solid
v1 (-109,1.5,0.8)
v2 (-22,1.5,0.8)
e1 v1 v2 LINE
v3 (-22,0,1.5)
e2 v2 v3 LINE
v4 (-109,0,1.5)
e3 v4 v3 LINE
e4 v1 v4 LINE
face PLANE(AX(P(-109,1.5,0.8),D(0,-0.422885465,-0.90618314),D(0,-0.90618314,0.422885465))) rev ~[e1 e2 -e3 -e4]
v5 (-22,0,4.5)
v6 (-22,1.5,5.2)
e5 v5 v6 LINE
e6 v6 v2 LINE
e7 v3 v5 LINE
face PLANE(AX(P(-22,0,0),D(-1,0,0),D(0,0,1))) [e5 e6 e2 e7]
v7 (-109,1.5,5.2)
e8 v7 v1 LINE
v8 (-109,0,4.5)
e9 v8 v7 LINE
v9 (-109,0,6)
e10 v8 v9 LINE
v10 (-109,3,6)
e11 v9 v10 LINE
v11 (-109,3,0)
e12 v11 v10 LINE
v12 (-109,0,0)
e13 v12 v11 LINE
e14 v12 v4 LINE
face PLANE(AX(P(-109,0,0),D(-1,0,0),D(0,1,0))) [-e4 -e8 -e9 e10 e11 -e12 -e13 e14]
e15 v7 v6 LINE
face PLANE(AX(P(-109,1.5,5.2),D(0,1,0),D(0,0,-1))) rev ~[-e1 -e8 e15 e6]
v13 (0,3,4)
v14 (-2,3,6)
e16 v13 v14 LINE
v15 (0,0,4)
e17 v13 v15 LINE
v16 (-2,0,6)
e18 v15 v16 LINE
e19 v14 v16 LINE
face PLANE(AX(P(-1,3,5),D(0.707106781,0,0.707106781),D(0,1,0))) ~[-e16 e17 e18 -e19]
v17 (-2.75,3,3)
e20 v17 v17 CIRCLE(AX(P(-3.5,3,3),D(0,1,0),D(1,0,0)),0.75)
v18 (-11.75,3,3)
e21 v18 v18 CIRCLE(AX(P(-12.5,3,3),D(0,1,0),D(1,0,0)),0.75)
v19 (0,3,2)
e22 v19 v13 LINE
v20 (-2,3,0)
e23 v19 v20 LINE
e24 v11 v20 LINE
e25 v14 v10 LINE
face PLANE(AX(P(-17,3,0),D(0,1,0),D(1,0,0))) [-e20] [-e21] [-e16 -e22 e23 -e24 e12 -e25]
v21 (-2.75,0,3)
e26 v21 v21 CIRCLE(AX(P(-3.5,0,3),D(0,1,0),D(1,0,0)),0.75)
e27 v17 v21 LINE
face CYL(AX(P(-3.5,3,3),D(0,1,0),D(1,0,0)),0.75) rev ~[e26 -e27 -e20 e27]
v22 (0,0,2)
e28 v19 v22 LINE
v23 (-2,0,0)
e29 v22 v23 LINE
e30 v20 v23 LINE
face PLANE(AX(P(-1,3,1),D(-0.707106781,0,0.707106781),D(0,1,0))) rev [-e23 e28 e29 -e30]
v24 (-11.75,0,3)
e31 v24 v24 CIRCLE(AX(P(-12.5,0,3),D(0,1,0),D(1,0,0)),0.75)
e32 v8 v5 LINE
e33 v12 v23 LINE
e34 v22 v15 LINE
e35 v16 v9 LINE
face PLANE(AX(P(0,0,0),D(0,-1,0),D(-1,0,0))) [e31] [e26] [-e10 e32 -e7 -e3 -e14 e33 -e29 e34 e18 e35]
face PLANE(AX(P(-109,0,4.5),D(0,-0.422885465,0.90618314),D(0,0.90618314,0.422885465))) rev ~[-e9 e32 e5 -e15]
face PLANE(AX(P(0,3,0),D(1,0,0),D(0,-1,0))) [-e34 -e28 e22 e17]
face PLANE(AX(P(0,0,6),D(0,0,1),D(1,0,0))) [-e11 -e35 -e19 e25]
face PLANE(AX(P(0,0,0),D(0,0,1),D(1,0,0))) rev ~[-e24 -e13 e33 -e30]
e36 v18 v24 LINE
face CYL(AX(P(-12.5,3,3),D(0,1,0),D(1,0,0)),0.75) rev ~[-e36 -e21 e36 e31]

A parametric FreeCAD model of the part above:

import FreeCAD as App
import Part
import Sketcher

V = App.Vector
Q = App.Units.Quantity


def edges_at(feature, points):
    """Names of the edges that pass closest to the given points."""
    edges = feature.Shape.Edges
    near = lambda p: min(range(len(edges)), key=lambda i: edges[i].distToShape(Part.Vertex(*p))[0])
    return sorted({f"Edge{near(p) + 1}" for p in points})


def add_polygon(sketch, points):
    """Adds a closed chain of lines whose ends are joined by coincident constraints."""
    first, n = sketch.GeometryCount, len(points)
    for a, b in zip(points, points[1:] + points[:1]):
        sketch.addGeometry(Part.LineSegment(App.Vector(*a, 0), App.Vector(*b, 0)), False)
    for i in range(n):
        sketch.addConstraint(Sketcher.Constraint("Coincident", first + i, 2, first + (i + 1) % n, 1))

doc = App.newDocument("Part")
params = doc.addObject("Spreadsheet::Sheet", "Params")
for row, (alias, value) in enumerate([
    ("sketch1_height", "3 mm"),
    ("sketch1_width", "109 mm"),
    ("pad1_length", "6 mm"),
    ("chamfer_size", "2 mm"),
    ("sketch2_height", "3 mm"),
    ("sketch2_height2", "4.4 mm"),
    ("pocket1_length", "87 mm"),
    ("sketch3_diameter", "1.5 mm"),
], start=1):
    params.set(f"A{row}", alias)
    params.set(f"B{row}", "=" + value)
    params.setAlias(f"B{row}", alias)

body = doc.addObject("PartDesign::Body", "Body")

sketch1 = doc.addObject("Sketcher::SketchObject", "Sketch")
body.addObject(sketch1)
sketch1.AttachmentSupport = (doc.XY_Plane, [""])
sketch1.MapMode = "FlatFace"
add_polygon(sketch1, [(-109, 0), (0, 0), (0, 3), (-109, 3)])
sketch1.addConstraint(Sketcher.Constraint("Horizontal", 0))
sketch1.addConstraint(Sketcher.Constraint("Vertical", 1))
sketch1.addConstraint(Sketcher.Constraint("Horizontal", 2))
sketch1.addConstraint(Sketcher.Constraint("Vertical", 3))
sketch1.addConstraint(Sketcher.Constraint("Coincident", 0, 2, -1, 1))
sketch1.addConstraint(Sketcher.Constraint("DistanceY", 1, 1, 1, 2, Q("3 mm")))
sketch1.addConstraint(Sketcher.Constraint("DistanceX", 0, 1, 0, 2, Q("109 mm")))
sketch1.setExpression("Constraints[9]", "Params.sketch1_height")
sketch1.setExpression("Constraints[10]", "Params.sketch1_width")
pad1 = doc.addObject("PartDesign::Pad", "Pad")
body.addObject(pad1)
pad1.Profile = sketch1
pad1.setExpression("Length", "Params.pad1_length")
doc.recompute()

chamfer = doc.addObject("PartDesign::Chamfer", "Chamfer")
body.addObject(chamfer)
chamfer.Base = (pad1, edges_at(pad1, [(0, 1.5, 0), (0, 1.5, 6)]))
chamfer.setExpression("Size", "Params.chamfer_size")

sketch2 = doc.addObject("Sketcher::SketchObject", "Sketch001")
body.addObject(sketch2)
sketch2.AttachmentSupport = (doc.YZ_Plane, [""])
sketch2.MapMode = "FlatFace"
sketch2.AttachmentOffset = App.Placement(V(0, 0, -109), App.Rotation())
add_polygon(sketch2, [(1.5, 5.2), (1.5, 0.8), (0, 1.5), (0, 4.5)])
sketch2.addConstraint(Sketcher.Constraint("Vertical", 0))
sketch2.addConstraint(Sketcher.Constraint("Vertical", 2))
sketch2.addConstraint(Sketcher.Constraint("PointOnObject", 1, 2, -2))
sketch2.addConstraint(Sketcher.Constraint("Equal", 1, 3))
sketch2.addConstraint(Sketcher.Constraint("DistanceY", 2, 1, 2, 2, Q("3 mm")))
sketch2.addConstraint(Sketcher.Constraint("DistanceY", 0, 2, 0, 1, Q("4.4 mm")))
sketch2.addConstraint(Sketcher.Constraint("DistanceX", -1, 1, 0, 2, Q("1.5 mm")))
sketch2.addConstraint(Sketcher.Constraint("DistanceY", -1, 1, 1, 2, Q("1.5 mm")))
sketch2.setExpression("Constraints[8]", "Params.sketch2_height")
sketch2.setExpression("Constraints[9]", "Params.sketch2_height2")
pocket1 = doc.addObject("PartDesign::Pocket", "Pocket")
body.addObject(pocket1)
pocket1.Profile = sketch2
pocket1.setExpression("Length", "Params.pocket1_length")
pocket1.Reversed = True

sketch3 = doc.addObject("Sketcher::SketchObject", "Sketch002")
body.addObject(sketch3)
sketch3.AttachmentSupport = (doc.XZ_Plane, [""])
sketch3.MapMode = "FlatFace"
sketch3.AttachmentOffset = App.Placement(V(0, 0, -3), App.Rotation())
sketch3.addGeometry(Part.Circle(V(-12.5, 3, 0), V(0, 0, 1), 0.8), False)
sketch3.addGeometry(Part.Circle(V(-3.5, 3, 0), V(0, 0, 1), 0.8), False)
sketch3.addConstraint(Sketcher.Constraint("Equal", 0, 1))
sketch3.addConstraint(Sketcher.Constraint("Horizontal", 0, 3, 1, 3))
sketch3.addConstraint(Sketcher.Constraint("Diameter", 0, Q("1.5 mm")))
sketch3.addConstraint(Sketcher.Constraint("DistanceX", 0, 3, 1, 3, Q("9 mm")))
sketch3.addConstraint(Sketcher.Constraint("DistanceX", 1, 3, -1, 1, Q("3.5 mm")))
sketch3.addConstraint(Sketcher.Constraint("DistanceY", -1, 1, 0, 3, Q("3 mm")))
sketch3.setExpression("Constraints[2]", "Params.sketch3_diameter")
pocket2 = doc.addObject("PartDesign::Pocket", "Pocket001")
body.addObject(pocket2)
pocket2.Profile = sketch3
pocket2.Type = "ThroughAll"
pocket2.Reversed = True

doc.recompute()
